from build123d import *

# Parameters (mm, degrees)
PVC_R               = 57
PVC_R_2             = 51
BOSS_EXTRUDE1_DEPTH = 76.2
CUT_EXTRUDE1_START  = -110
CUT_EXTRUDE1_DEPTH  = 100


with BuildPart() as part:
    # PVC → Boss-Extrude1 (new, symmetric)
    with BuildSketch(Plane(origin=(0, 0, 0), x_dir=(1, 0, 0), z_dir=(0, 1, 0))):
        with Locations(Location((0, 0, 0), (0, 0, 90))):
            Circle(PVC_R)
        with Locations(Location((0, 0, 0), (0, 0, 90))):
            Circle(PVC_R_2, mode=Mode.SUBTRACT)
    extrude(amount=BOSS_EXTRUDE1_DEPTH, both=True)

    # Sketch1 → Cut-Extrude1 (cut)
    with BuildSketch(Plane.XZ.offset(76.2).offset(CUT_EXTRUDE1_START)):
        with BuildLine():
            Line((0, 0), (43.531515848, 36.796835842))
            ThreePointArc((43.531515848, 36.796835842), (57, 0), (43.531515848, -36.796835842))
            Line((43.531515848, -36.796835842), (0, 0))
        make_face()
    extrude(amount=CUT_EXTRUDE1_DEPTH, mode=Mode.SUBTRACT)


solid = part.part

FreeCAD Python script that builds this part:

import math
import FreeCAD as App
import Part
import Sketcher
from FreeCAD import Vector
Q = App.Units.Quantity

doc = App.newDocument("Part")
body = doc.addObject("PartDesign::Body", "Body")

# Sketch on XZ plane
sketch1 = body.newObject("Sketcher::SketchObject", "Sketch")
sketch1.AttachmentSupport = (doc.getObject("XZ_Plane"), [""])
sketch1.MapMode = "FlatFace"
sketch1.addGeometry([
    Part.Circle(Vector(0, 0, 0), Vector(0, 0, 1), 57),
    Part.Circle(Vector(0, 0, 0), Vector(0, 0, 1), 51),
], False)
sketch1.addConstraint([
    Sketcher.Constraint("Coincident", 0, 3, -1, 1),
    Sketcher.Constraint("Coincident", 1, 3, -1, 1),
    Sketcher.Constraint("Diameter", 0, Q("114 mm")),
    Sketcher.Constraint("Diameter", 1, Q("102 mm")),
])
pad1 = body.newObject("PartDesign::Pad", "Pad")
pad1.Profile = sketch1
pad1.Length = 152.4
pad1.Midplane = True

# Sketch on XZ plane
sketch2 = body.newObject("Sketcher::SketchObject", "Sketch001")
sketch2.AttachmentSupport = (doc.getObject("XZ_Plane"), [""])
sketch2.MapMode = "FlatFace"
sketch2.AttachmentOffset = App.Placement(Vector(0, 0, -33.8), App.Rotation())
sketch2.addGeometry([
    Part.LineSegment(Vector(44, 37, 0), Vector(0, 0, 0)),
    Part.LineSegment(Vector(0, 0, 0), Vector(44, -37, 0)),
    Part.ArcOfCircle(Part.Circle(Vector(0, 0, 0), Vector(0, 0, 1), 57), math.radians(-40), math.radians(40)),
], False)
sketch2.addConstraint([
    Sketcher.Constraint("Coincident", 0, 2, 1, 1),
    Sketcher.Constraint("Coincident", 1, 2, 2, 1),
    Sketcher.Constraint("Coincident", 2, 2, 0, 1),
    Sketcher.Constraint("Coincident", 2, 3, -1, 1),
    Sketcher.Constraint("Coincident", 0, 2, -1, 1),
    Sketcher.Constraint("Vertical", 1, 2, 2, 2),
    Sketcher.Constraint("Radius", 2, Q("57 mm")),
    Sketcher.Constraint("DistanceY", 1, 2, 2, 2, Q("73.593672 mm")),
])
pocket1 = body.newObject("PartDesign::Pocket", "Pocket")
pocket1.Profile = sketch2
pocket1.Length = 100
pocket1.Reversed = True

doc.recompute()
